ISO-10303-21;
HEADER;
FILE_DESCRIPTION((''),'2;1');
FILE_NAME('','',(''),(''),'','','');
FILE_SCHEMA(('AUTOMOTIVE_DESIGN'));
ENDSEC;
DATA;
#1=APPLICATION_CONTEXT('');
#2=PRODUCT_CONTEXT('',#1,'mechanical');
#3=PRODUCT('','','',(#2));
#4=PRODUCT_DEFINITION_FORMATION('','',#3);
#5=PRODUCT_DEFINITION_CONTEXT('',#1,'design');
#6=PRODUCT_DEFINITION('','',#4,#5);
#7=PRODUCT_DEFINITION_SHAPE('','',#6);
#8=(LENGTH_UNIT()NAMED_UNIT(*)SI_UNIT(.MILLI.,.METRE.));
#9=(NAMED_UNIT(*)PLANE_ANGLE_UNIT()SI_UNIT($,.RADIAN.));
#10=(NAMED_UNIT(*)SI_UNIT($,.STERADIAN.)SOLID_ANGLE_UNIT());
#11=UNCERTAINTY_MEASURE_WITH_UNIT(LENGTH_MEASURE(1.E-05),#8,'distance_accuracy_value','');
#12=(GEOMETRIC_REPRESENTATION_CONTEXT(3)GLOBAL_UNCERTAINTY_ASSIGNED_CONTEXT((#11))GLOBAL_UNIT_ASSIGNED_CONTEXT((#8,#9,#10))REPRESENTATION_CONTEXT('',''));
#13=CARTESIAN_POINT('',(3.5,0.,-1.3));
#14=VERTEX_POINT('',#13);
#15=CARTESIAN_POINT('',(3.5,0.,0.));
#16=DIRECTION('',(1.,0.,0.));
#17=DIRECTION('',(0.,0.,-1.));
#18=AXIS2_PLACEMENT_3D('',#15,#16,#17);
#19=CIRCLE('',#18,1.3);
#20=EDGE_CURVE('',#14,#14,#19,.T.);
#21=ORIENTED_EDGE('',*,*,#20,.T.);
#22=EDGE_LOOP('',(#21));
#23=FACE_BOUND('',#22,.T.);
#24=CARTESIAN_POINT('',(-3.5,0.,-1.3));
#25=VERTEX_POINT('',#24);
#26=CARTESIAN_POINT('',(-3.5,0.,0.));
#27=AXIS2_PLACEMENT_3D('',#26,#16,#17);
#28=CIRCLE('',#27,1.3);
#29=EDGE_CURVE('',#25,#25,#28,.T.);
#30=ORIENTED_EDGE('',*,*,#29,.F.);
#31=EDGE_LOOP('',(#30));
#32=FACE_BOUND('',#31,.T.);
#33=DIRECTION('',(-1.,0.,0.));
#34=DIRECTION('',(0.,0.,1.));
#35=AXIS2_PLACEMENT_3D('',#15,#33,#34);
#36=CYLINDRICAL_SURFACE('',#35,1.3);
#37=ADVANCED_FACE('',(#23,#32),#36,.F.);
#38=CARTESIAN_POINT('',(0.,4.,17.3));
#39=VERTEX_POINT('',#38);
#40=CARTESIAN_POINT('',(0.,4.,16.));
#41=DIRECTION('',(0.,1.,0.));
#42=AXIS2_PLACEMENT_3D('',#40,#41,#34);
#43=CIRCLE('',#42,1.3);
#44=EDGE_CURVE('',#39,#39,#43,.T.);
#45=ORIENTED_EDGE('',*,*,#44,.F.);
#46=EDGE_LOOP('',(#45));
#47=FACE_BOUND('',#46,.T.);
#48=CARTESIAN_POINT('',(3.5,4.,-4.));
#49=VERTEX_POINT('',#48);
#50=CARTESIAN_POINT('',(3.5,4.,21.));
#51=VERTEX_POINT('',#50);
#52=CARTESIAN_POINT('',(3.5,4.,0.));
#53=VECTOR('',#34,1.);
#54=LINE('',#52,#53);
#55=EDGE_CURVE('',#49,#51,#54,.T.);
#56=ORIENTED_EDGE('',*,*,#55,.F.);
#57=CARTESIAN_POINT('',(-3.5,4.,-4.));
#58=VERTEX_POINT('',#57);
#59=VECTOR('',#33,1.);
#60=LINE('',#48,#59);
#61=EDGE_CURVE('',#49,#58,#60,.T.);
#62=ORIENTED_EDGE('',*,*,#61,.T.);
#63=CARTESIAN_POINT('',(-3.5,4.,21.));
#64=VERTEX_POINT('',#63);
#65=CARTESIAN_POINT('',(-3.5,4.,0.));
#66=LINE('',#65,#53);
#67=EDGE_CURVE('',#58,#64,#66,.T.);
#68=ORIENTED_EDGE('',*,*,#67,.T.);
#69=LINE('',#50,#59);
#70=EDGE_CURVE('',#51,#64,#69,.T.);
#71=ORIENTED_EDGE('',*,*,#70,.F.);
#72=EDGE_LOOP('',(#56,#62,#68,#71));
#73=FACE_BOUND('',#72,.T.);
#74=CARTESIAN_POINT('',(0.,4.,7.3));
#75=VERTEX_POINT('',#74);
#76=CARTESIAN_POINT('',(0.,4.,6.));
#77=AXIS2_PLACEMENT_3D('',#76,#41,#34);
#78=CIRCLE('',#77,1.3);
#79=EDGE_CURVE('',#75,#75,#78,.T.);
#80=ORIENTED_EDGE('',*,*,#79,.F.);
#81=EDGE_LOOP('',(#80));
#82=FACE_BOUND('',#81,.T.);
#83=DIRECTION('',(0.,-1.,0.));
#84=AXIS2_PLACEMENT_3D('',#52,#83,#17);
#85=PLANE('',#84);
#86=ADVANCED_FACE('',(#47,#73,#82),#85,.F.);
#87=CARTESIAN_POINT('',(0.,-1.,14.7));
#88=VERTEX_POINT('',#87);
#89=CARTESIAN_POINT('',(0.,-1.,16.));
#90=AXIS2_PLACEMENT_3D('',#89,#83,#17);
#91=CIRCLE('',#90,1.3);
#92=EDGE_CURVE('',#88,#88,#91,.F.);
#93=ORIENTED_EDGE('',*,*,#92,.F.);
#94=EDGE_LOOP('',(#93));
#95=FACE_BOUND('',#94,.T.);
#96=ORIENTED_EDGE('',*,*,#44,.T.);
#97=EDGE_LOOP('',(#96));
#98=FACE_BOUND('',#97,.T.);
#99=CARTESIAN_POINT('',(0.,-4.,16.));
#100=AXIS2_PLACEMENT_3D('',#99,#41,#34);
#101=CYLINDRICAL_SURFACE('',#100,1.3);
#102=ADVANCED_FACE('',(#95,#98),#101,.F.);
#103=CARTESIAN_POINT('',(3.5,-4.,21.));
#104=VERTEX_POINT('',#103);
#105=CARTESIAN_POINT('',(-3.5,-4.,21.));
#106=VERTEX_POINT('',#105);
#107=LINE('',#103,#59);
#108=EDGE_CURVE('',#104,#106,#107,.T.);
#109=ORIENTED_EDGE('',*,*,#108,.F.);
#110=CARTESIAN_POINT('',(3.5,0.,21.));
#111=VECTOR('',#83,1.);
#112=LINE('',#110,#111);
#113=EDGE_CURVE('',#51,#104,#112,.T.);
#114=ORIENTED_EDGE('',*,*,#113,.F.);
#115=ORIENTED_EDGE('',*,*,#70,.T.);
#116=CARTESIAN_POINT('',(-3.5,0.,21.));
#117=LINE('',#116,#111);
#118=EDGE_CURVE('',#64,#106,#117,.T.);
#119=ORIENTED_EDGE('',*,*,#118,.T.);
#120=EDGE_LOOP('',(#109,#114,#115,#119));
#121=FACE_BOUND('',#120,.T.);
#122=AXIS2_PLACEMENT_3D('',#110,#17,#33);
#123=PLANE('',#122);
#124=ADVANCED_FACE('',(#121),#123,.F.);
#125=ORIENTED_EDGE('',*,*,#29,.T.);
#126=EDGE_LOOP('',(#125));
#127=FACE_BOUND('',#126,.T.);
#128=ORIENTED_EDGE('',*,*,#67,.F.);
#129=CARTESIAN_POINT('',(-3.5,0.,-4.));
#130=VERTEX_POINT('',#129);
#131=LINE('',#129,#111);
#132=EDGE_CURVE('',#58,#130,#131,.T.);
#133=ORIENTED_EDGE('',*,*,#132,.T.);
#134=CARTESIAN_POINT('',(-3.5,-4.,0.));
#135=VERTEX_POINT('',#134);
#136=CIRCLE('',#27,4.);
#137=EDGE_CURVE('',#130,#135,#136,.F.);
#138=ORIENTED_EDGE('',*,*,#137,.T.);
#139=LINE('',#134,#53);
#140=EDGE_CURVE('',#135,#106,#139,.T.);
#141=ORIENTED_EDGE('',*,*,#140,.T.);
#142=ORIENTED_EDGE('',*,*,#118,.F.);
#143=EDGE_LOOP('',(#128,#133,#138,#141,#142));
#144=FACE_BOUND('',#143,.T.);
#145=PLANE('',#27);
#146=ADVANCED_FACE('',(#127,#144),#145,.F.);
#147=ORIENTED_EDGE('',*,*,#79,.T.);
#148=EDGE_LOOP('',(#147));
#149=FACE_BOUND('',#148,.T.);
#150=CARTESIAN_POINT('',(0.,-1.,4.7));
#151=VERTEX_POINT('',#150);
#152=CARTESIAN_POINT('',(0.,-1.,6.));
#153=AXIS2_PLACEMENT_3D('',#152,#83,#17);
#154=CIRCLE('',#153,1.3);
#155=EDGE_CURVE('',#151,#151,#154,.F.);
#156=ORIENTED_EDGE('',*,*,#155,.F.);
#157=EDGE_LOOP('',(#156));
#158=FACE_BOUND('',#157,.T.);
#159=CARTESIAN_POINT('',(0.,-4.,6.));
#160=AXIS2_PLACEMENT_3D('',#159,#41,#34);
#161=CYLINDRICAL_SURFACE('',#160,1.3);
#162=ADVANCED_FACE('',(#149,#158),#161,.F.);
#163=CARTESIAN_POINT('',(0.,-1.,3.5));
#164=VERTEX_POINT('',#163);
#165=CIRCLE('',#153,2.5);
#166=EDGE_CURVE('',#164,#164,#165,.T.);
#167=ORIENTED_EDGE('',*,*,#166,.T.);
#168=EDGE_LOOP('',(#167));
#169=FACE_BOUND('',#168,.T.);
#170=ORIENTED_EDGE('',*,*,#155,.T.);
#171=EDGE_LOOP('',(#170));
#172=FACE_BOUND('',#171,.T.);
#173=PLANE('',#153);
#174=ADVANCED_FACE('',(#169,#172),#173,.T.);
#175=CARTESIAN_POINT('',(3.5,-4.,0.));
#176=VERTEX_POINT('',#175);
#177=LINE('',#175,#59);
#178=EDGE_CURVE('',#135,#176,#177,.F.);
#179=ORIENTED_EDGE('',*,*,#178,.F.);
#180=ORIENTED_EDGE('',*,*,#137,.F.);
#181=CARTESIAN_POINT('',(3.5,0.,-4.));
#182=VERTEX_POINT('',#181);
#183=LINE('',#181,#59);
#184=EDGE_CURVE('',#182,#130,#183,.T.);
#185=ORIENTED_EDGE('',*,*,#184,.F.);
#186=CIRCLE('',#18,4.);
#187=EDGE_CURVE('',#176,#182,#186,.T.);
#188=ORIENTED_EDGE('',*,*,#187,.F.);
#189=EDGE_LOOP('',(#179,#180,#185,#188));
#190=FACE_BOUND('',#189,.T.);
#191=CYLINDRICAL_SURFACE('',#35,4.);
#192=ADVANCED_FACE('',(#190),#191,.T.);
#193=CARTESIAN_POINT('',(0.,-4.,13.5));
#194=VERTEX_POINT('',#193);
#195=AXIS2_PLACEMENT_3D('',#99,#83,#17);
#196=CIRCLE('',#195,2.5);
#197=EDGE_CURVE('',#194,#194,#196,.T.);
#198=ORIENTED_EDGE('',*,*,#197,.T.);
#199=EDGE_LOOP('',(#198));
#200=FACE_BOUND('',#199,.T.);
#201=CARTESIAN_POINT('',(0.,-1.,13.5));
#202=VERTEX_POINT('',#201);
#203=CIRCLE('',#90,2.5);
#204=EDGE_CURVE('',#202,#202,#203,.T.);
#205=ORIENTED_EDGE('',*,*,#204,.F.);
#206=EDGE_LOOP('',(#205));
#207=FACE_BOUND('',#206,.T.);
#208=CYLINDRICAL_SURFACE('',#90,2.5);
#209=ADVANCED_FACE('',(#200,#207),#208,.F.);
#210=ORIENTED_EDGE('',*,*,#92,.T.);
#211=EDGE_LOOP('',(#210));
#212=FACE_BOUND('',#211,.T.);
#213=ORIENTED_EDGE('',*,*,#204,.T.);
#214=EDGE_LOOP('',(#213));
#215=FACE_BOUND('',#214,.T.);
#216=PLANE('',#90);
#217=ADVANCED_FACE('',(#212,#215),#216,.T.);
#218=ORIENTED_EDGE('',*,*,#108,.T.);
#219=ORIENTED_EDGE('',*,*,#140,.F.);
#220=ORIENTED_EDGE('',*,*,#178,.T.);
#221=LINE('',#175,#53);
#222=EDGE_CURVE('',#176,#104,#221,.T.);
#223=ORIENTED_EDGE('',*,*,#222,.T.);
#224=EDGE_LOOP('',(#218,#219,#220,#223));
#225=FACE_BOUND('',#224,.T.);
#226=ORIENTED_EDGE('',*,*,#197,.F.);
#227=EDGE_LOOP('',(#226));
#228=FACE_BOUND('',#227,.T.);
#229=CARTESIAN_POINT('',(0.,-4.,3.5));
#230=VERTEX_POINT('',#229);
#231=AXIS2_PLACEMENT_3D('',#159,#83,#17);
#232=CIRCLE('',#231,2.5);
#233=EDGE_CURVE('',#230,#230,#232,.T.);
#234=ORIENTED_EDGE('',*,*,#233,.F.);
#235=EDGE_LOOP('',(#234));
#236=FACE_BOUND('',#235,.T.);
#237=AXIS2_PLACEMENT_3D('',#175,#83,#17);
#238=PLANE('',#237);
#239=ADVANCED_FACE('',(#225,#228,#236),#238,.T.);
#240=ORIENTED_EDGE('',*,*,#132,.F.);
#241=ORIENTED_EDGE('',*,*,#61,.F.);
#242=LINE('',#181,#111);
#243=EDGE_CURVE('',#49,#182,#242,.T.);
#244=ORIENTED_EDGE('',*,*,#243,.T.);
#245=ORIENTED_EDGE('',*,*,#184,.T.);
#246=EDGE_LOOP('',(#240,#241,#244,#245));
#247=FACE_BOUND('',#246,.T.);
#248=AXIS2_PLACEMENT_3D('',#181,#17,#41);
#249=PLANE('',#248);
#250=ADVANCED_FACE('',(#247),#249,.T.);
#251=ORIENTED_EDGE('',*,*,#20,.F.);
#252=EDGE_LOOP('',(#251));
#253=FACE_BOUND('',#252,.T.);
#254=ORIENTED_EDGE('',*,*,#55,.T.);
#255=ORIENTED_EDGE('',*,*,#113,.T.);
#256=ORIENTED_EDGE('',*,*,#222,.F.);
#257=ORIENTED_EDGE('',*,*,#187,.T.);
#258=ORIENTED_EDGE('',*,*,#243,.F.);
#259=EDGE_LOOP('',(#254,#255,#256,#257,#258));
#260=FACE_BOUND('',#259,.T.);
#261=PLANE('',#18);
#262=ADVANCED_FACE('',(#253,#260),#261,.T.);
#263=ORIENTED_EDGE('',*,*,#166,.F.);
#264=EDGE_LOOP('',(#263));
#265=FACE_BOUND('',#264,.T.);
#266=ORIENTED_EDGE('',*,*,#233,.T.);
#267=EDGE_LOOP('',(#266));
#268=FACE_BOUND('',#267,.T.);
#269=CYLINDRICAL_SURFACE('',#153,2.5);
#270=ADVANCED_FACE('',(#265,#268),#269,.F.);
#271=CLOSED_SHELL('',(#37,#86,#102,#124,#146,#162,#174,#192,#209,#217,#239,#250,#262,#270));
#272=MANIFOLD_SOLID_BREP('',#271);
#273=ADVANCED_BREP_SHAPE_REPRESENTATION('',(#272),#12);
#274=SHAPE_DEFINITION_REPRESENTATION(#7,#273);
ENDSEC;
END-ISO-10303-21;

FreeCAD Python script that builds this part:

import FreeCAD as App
import Part
import Sketcher

V = App.Vector


def edges_at(feature, points):
    """Names of the edges that pass closest to the given points."""
    edges = feature.Shape.Edges
    near = lambda p: min(range(len(edges)), key=lambda i: edges[i].distToShape(Part.Vertex(*p))[0])
    return sorted({f"Edge{near(p) + 1}" for p in points})

doc = App.newDocument("Part")
body = doc.addObject("PartDesign::Body", "Body")

# Sketch on YZ plane
sketch1 = body.newObject("Sketcher::SketchObject", "Sketch")
sketch1.AttachmentSupport = (doc.getObject("YZ_Plane"), [""])
sketch1.MapMode = "FlatFace"
sketch1.addGeometry([
    Part.LineSegment(V(4, 21, 0), V(-4, 21, 0)),  # 0
    Part.LineSegment(V(-4, 21, 0), V(-4, -4, 0)),  # 1
    Part.LineSegment(V(-4, -4, 0), V(4, -4, 0)),  # 2
    Part.LineSegment(V(4, -4, 0), V(4, 21, 0)),  # 3
    Part.Circle(V(0, 0, 0), V(0, 0, 1), 1.3),  # 4
], False)
sketch1.addConstraint([
    Sketcher.Constraint("Coincident", 0, 2, 1, 1),
    Sketcher.Constraint("Coincident", 1, 2, 2, 1),
    Sketcher.Constraint("Coincident", 2, 2, 3, 1),
    Sketcher.Constraint("Coincident", 3, 2, 0, 1),
    Sketcher.Constraint("Horizontal", 0),
    Sketcher.Constraint("Vertical", 1),
    Sketcher.Constraint("Horizontal", 2),
    Sketcher.Constraint("Vertical", 3),
    Sketcher.Constraint("Coincident", 4, 3, -1, 1),
    Sketcher.Constraint("Diameter", 4, 2.6),
    Sketcher.Constraint("DistanceX", 0, 2, 0, 1, 8.0),
    Sketcher.Constraint("DistanceY", 1, 2, 1, 1, 25.0),
    Sketcher.Constraint("DistanceX", 0, 2, -1, 1, 4.0),
    Sketcher.Constraint("DistanceY", -1, 1, 0, 2, 21.0),
])
pad1 = body.newObject("PartDesign::Pad", "Pad")
pad1.Profile = sketch1
pad1.Length = 7
pad1.Midplane = True
doc.recompute()

fillet = body.newObject("PartDesign::Fillet", "Fillet")
fillet.Base = (pad1, edges_at(pad1, [(0, -4, -4)]))
fillet.Radius = 4

# Sketch on XZ plane
sketch2 = body.newObject("Sketcher::SketchObject", "Sketch001")
sketch2.AttachmentSupport = (doc.getObject("XZ_Plane"), [""])
sketch2.MapMode = "FlatFace"
sketch2.AttachmentOffset = App.Placement(V(0, 0, -4), App.Rotation())
sketch2.addGeometry([
    Part.Circle(V(0, 6, 0), V(0, 0, 1), 1.3),
    Part.Circle(V(0, 16, 0), V(0, 0, 1), 1.3),
], False)
sketch2.addConstraint([
    Sketcher.Constraint("Equal", 0, 1),
    Sketcher.Constraint("PointOnObject", 0, 3, -2),
    Sketcher.Constraint("PointOnObject", 1, 3, -2),
    Sketcher.Constraint("Diameter", 0, 2.6),
    Sketcher.Constraint("DistanceY", -1, 1, 0, 3, 6.0),
    Sketcher.Constraint("DistanceY", -1, 1, 1, 3, 16.0),
])
pocket1 = body.newObject("PartDesign::Pocket", "Pocket")
pocket1.Profile = sketch2
pocket1.Type = "ThroughAll"
pocket1.Reversed = True

# Sketch on XZ plane
sketch3 = body.newObject("Sketcher::SketchObject", "Sketch002")
sketch3.AttachmentSupport = (doc.getObject("XZ_Plane"), [""])
sketch3.MapMode = "FlatFace"
sketch3.AttachmentOffset = App.Placement(V(0, 0, 4), App.Rotation())
sketch3.addGeometry([
    Part.Circle(V(0, 16, 0), V(0, 0, 1), 2.5),
    Part.Circle(V(0, 6, 0), V(0, 0, 1), 2.5),
], False)
sketch3.addConstraint([
    Sketcher.Constraint("Equal", 0, 1),
    Sketcher.Constraint("PointOnObject", 0, 3, -2),
    Sketcher.Constraint("PointOnObject", 1, 3, -2),
    Sketcher.Constraint("Diameter", 0, 5.0),
    Sketcher.Constraint("DistanceY", -1, 1, 0, 3, 16.0),
    Sketcher.Constraint("DistanceY", -1, 1, 1, 3, 6.0),
])
pocket2 = body.newObject("PartDesign::Pocket", "Pocket001")
pocket2.Profile = sketch3
pocket2.Length = 3

doc.recompute()
